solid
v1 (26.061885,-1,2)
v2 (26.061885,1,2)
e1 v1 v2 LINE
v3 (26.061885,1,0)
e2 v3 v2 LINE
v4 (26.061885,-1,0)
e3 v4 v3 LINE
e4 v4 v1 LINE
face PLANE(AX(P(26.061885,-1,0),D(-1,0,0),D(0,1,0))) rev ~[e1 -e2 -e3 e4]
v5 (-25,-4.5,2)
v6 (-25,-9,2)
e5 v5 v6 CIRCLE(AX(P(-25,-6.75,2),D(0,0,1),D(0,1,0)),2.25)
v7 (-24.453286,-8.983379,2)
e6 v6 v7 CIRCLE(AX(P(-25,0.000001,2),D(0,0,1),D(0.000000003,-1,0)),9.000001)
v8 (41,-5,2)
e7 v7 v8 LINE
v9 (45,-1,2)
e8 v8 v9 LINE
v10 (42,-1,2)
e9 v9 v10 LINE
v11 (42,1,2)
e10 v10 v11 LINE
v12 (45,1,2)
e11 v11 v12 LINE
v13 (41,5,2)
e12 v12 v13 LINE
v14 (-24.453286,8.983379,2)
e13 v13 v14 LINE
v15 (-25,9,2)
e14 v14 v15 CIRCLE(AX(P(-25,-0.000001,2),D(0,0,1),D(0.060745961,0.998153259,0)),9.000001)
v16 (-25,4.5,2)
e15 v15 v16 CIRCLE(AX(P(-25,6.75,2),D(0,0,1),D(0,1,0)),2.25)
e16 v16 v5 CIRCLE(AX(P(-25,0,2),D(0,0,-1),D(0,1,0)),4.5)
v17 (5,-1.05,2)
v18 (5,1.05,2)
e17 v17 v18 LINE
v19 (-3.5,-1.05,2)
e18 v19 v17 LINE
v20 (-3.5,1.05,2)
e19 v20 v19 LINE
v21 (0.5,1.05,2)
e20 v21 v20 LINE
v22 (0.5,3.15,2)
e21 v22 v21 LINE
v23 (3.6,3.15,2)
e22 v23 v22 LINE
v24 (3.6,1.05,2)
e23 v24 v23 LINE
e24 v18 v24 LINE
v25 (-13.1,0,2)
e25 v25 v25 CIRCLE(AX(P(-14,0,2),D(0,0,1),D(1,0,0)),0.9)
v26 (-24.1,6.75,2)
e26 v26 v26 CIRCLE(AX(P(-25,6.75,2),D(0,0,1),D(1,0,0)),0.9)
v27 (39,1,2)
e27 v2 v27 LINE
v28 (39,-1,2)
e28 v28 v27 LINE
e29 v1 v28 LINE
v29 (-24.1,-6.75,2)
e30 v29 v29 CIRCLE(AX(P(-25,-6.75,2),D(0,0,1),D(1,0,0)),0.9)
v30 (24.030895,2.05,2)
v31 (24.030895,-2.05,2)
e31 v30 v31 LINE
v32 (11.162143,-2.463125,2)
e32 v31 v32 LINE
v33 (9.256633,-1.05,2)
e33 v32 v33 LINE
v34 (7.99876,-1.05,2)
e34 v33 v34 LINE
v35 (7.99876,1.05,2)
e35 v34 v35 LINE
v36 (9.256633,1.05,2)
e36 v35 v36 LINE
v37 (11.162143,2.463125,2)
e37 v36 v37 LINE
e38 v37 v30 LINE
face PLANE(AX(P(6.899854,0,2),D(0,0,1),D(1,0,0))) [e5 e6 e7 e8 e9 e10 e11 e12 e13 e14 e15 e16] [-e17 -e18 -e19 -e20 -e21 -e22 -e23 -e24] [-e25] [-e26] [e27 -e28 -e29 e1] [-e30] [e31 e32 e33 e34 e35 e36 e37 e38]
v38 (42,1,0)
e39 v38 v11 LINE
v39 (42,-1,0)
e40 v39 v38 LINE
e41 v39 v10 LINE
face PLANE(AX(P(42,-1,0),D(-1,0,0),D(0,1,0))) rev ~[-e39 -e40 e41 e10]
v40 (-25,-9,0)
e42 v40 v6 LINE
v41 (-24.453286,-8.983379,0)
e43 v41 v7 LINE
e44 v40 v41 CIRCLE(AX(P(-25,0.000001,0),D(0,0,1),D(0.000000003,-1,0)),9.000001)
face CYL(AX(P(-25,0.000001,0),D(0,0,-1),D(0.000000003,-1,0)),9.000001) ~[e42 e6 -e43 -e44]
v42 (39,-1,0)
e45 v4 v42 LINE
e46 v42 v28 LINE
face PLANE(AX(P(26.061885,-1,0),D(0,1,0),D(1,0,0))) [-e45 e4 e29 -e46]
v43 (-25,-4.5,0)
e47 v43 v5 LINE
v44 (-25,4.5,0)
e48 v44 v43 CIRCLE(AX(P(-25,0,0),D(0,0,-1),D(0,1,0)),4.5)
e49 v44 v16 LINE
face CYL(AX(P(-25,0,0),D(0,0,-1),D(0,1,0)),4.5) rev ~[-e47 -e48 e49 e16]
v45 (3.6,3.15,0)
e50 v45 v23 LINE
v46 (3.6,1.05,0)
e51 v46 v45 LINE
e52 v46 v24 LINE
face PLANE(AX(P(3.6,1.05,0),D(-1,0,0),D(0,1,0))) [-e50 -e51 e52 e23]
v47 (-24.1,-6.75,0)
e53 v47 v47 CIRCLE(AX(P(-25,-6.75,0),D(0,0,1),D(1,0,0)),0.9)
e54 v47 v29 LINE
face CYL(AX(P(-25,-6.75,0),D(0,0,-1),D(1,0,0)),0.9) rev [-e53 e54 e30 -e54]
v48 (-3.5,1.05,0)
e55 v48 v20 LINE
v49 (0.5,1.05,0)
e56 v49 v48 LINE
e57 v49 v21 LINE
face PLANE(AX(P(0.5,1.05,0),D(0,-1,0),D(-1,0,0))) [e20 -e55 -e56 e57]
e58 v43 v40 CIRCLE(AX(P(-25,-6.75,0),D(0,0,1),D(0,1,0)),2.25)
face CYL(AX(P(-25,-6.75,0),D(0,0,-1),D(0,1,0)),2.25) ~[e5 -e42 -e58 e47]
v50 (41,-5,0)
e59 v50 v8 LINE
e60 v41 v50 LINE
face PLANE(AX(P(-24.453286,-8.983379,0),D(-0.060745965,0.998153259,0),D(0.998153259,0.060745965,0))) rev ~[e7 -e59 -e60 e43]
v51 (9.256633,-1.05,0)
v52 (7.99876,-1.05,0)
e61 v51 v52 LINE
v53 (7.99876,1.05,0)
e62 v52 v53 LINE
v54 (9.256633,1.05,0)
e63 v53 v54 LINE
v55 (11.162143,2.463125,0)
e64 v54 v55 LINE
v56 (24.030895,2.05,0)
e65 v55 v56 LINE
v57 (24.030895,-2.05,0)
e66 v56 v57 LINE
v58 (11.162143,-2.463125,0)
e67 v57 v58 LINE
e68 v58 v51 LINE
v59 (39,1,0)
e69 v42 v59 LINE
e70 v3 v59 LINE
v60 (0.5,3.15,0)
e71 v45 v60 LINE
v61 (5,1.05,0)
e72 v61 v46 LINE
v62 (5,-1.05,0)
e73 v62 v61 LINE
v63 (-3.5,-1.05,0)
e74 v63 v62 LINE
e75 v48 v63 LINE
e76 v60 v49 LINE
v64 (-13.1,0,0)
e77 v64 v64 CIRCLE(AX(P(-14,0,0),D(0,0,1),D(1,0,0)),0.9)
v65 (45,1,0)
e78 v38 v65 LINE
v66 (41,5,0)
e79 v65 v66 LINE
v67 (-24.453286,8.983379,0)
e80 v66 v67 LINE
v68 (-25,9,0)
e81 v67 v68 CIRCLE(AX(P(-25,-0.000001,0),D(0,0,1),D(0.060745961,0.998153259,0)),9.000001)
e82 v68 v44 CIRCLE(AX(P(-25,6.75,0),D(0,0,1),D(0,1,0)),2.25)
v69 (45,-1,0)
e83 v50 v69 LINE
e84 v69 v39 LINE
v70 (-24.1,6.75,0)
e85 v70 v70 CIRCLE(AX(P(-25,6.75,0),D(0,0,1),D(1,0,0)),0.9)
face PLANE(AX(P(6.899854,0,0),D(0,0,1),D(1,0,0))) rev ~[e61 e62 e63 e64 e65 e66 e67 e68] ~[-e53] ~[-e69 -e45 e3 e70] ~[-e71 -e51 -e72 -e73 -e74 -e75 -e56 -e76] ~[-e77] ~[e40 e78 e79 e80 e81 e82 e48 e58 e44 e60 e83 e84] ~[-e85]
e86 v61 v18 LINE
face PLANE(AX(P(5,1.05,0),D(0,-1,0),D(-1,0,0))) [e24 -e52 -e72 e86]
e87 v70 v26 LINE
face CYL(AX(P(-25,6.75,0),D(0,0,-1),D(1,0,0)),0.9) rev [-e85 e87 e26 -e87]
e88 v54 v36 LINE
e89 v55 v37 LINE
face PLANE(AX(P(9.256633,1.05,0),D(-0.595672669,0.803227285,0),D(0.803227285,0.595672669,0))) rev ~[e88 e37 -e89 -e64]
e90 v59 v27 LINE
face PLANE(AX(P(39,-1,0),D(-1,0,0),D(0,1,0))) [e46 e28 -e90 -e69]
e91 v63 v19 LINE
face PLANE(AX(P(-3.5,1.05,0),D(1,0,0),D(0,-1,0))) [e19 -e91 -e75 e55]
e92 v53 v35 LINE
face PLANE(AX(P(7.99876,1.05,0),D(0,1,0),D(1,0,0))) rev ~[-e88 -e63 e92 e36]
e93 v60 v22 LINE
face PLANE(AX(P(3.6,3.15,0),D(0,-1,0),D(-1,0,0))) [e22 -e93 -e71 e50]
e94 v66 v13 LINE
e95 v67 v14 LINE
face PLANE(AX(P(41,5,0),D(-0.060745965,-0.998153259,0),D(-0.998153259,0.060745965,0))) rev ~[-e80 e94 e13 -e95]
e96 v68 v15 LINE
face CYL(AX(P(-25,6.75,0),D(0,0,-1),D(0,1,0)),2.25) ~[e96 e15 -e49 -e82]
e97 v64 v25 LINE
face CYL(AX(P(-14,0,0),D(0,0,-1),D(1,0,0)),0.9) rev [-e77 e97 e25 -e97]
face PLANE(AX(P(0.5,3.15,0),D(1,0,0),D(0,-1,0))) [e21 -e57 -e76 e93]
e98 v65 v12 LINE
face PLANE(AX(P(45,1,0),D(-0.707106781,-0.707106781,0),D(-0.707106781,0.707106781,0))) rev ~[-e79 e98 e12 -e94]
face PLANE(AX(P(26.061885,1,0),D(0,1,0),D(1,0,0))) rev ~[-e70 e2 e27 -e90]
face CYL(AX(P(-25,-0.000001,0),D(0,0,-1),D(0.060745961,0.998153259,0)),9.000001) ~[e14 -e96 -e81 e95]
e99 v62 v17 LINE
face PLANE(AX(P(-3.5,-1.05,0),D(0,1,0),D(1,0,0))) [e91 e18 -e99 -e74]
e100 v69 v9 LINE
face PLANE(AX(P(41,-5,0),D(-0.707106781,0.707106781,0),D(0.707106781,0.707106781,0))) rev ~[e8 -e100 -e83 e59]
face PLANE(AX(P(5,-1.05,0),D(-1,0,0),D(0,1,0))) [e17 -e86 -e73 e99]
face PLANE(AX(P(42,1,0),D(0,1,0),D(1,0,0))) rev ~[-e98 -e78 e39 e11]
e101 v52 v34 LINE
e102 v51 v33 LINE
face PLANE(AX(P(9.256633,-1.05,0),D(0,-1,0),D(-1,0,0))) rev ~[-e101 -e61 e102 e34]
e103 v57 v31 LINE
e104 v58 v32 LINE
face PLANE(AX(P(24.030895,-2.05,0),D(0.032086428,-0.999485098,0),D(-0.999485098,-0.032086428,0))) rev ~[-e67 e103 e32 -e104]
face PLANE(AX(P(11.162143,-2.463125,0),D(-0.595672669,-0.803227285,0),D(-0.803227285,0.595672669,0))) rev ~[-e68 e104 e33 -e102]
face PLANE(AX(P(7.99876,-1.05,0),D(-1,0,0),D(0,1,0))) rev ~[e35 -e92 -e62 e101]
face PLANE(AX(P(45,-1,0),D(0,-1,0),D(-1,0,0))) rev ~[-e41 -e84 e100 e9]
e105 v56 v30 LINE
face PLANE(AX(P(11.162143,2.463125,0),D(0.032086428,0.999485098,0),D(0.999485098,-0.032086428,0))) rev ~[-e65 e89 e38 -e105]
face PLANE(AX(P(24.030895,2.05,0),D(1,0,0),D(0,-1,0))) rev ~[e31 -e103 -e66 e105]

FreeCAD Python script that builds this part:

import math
import FreeCAD as App
import Part
import Sketcher
Q = App.Units.Quantity

doc = App.newDocument("Part")
body = doc.addObject("PartDesign::Body", "Body")

sketch1 = doc.addObject("Sketcher::SketchObject", "Sketch")
body.addObject(sketch1)
sketch1.AttachmentSupport = (doc.XY_Plane, [""])
sketch1.MapMode = "FlatFace"
sketch1.addGeometry(Part.LineSegment(App.Vector(42, 1, 0), App.Vector(45, 1, 0)), False)
sketch1.addGeometry(Part.LineSegment(App.Vector(45, 1, 0), App.Vector(41, 5, 0)), False)
sketch1.addGeometry(Part.LineSegment(App.Vector(41, 5, 0), App.Vector(-24.453286, 8.983379, 0)), False)
sketch1.addGeometry(Part.ArcOfCircle(Part.Circle(App.Vector(-25, -0.000001, 0), App.Vector(0, 0, 1), 9.000001), math.radians(86.517369), math.radians(90)), False)
sketch1.addGeometry(Part.ArcOfCircle(Part.Circle(App.Vector(-25, 6.75, 0), App.Vector(0, 0, 1), 2.25), math.radians(90), math.radians(270)), False)
sketch1.addGeometry(Part.ArcOfCircle(Part.Circle(App.Vector(-25, 0, 0), App.Vector(0, 0, 1), 4.5), math.radians(-90), math.radians(90)), False)
sketch1.addGeometry(Part.ArcOfCircle(Part.Circle(App.Vector(-25, -6.75, 0), App.Vector(0, 0, 1), 2.25), math.radians(90), math.radians(270)), False)
sketch1.addGeometry(Part.ArcOfCircle(Part.Circle(App.Vector(-25, 0.000001, 0), App.Vector(0, 0, 1), 9.000001), math.radians(-90), math.radians(-86.517369)), False)
sketch1.addGeometry(Part.LineSegment(App.Vector(-24.453286, -8.983379, 0), App.Vector(41, -5, 0)), False)
sketch1.addGeometry(Part.LineSegment(App.Vector(41, -5, 0), App.Vector(45, -1, 0)), False)
sketch1.addGeometry(Part.LineSegment(App.Vector(45, -1, 0), App.Vector(42, -1, 0)), False)
sketch1.addGeometry(Part.LineSegment(App.Vector(42, -1, 0), App.Vector(42, 1, 0)), False)
sketch1.addGeometry(Part.Circle(App.Vector(-25, -6.75, 0), App.Vector(0, 0, 1), 0.9), False)
sketch1.addGeometry(Part.Circle(App.Vector(-14, 0, 0), App.Vector(0, 0, 1), 0.9), False)
sketch1.addGeometry(Part.LineSegment(App.Vector(3.6, 1.05, 0), App.Vector(5, 1.05, 0)), False)
sketch1.addGeometry(Part.LineSegment(App.Vector(5, 1.05, 0), App.Vector(5, -1.05, 0)), False)
sketch1.addGeometry(Part.LineSegment(App.Vector(5, -1.05, 0), App.Vector(-3.5, -1.05, 0)), False)
sketch1.addGeometry(Part.LineSegment(App.Vector(-3.5, -1.05, 0), App.Vector(-3.5, 1.05, 0)), False)
sketch1.addGeometry(Part.LineSegment(App.Vector(-3.5, 1.05, 0), App.Vector(0.5, 1.05, 0)), False)
sketch1.addGeometry(Part.LineSegment(App.Vector(0.5, 1.05, 0), App.Vector(0.5, 3.15, 0)), False)
sketch1.addGeometry(Part.LineSegment(App.Vector(0.5, 3.15, 0), App.Vector(3.6, 3.15, 0)), False)
sketch1.addGeometry(Part.LineSegment(App.Vector(3.6, 3.15, 0), App.Vector(3.6, 1.05, 0)), False)
sketch1.addGeometry(Part.Circle(App.Vector(-25, 6.75, 0), App.Vector(0, 0, 1), 0.9), False)
sketch1.addGeometry(Part.LineSegment(App.Vector(24.030895, 2.05, 0), App.Vector(24.030895, -2.05, 0)), False)
sketch1.addGeometry(Part.LineSegment(App.Vector(24.030895, -2.05, 0), App.Vector(11.162143, -2.463125, 0)), False)
sketch1.addGeometry(Part.LineSegment(App.Vector(11.162143, -2.463125, 0), App.Vector(9.256633, -1.05, 0)), False)
sketch1.addGeometry(Part.LineSegment(App.Vector(9.256633, -1.05, 0), App.Vector(7.99876, -1.05, 0)), False)
sketch1.addGeometry(Part.LineSegment(App.Vector(7.99876, -1.05, 0), App.Vector(7.99876, 1.05, 0)), False)
sketch1.addGeometry(Part.LineSegment(App.Vector(7.99876, 1.05, 0), App.Vector(9.256633, 1.05, 0)), False)
sketch1.addGeometry(Part.LineSegment(App.Vector(9.256633, 1.05, 0), App.Vector(11.162143, 2.463125, 0)), False)
sketch1.addGeometry(Part.LineSegment(App.Vector(11.162143, 2.463125, 0), App.Vector(24.030895, 2.05, 0)), False)
sketch1.addGeometry(Part.LineSegment(App.Vector(39, -1, 0), App.Vector(26.061885, -1, 0)), False)
sketch1.addGeometry(Part.LineSegment(App.Vector(26.061885, -1, 0), App.Vector(26.061885, 1, 0)), False)
sketch1.addGeometry(Part.LineSegment(App.Vector(26.061885, 1, 0), App.Vector(39, 1, 0)), False)
sketch1.addGeometry(Part.LineSegment(App.Vector(39, 1, 0), App.Vector(39, -1, 0)), False)
sketch1.addConstraint(Sketcher.Constraint("Coincident", 0, 2, 1, 1))
sketch1.addConstraint(Sketcher.Constraint("Coincident", 1, 2, 2, 1))
sketch1.addConstraint(Sketcher.Constraint("Tangent", 2, 2, 3, 1))
sketch1.addConstraint(Sketcher.Constraint("Tangent", 3, 2, 4, 1))
sketch1.addConstraint(Sketcher.Constraint("Tangent", 4, 2, 5, 2))
sketch1.addConstraint(Sketcher.Constraint("Tangent", 5, 1, 6, 1))
sketch1.addConstraint(Sketcher.Constraint("Tangent", 6, 2, 7, 1))
sketch1.addConstraint(Sketcher.Constraint("Tangent", 7, 2, 8, 1))
sketch1.addConstraint(Sketcher.Constraint("Coincident", 8, 2, 9, 1))
sketch1.addConstraint(Sketcher.Constraint("Coincident", 9, 2, 10, 1))
sketch1.addConstraint(Sketcher.Constraint("Coincident", 10, 2, 11, 1))
sketch1.addConstraint(Sketcher.Constraint("Coincident", 11, 2, 0, 1))
sketch1.addConstraint(Sketcher.Constraint("Coincident", 14, 2, 15, 1))
sketch1.addConstraint(Sketcher.Constraint("Coincident", 15, 2, 16, 1))
sketch1.addConstraint(Sketcher.Constraint("Coincident", 16, 2, 17, 1))
sketch1.addConstraint(Sketcher.Constraint("Coincident", 17, 2, 18, 1))
sketch1.addConstraint(Sketcher.Constraint("Coincident", 18, 2, 19, 1))
sketch1.addConstraint(Sketcher.Constraint("Coincident", 19, 2, 20, 1))
sketch1.addConstraint(Sketcher.Constraint("Coincident", 20, 2, 21, 1))
sketch1.addConstraint(Sketcher.Constraint("Coincident", 21, 2, 14, 1))
sketch1.addConstraint(Sketcher.Constraint("Coincident", 23, 2, 24, 1))
sketch1.addConstraint(Sketcher.Constraint("Coincident", 24, 2, 25, 1))
sketch1.addConstraint(Sketcher.Constraint("Coincident", 25, 2, 26, 1))
sketch1.addConstraint(Sketcher.Constraint("Coincident", 26, 2, 27, 1))
sketch1.addConstraint(Sketcher.Constraint("Coincident", 27, 2, 28, 1))
sketch1.addConstraint(Sketcher.Constraint("Coincident", 28, 2, 29, 1))
sketch1.addConstraint(Sketcher.Constraint("Coincident", 29, 2, 30, 1))
sketch1.addConstraint(Sketcher.Constraint("Coincident", 30, 2, 23, 1))
sketch1.addConstraint(Sketcher.Constraint("Coincident", 31, 2, 32, 1))
sketch1.addConstraint(Sketcher.Constraint("Coincident", 32, 2, 33, 1))
sketch1.addConstraint(Sketcher.Constraint("Coincident", 33, 2, 34, 1))
sketch1.addConstraint(Sketcher.Constraint("Coincident", 34, 2, 31, 1))
sketch1.addConstraint(Sketcher.Constraint("Horizontal", 0))
sketch1.addConstraint(Sketcher.Constraint("Horizontal", 10))
sketch1.addConstraint(Sketcher.Constraint("Vertical", 11))
sketch1.addConstraint(Sketcher.Constraint("Horizontal", 14))
sketch1.addConstraint(Sketcher.Constraint("Vertical", 15))
sketch1.addConstraint(Sketcher.Constraint("Horizontal", 16))
sketch1.addConstraint(Sketcher.Constraint("Vertical", 17))
sketch1.addConstraint(Sketcher.Constraint("Horizontal", 18))
sketch1.addConstraint(Sketcher.Constraint("Vertical", 19))
sketch1.addConstraint(Sketcher.Constraint("Horizontal", 20))
sketch1.addConstraint(Sketcher.Constraint("Vertical", 21))
sketch1.addConstraint(Sketcher.Constraint("Vertical", 23))
sketch1.addConstraint(Sketcher.Constraint("Horizontal", 26))
sketch1.addConstraint(Sketcher.Constraint("Vertical", 27))
sketch1.addConstraint(Sketcher.Constraint("Horizontal", 28))
sketch1.addConstraint(Sketcher.Constraint("Horizontal", 31))
sketch1.addConstraint(Sketcher.Constraint("Vertical", 32))
sketch1.addConstraint(Sketcher.Constraint("Horizontal", 33))
sketch1.addConstraint(Sketcher.Constraint("Vertical", 34))
sketch1.addConstraint(Sketcher.Constraint("Coincident", 5, 3, 3, 3))
sketch1.addConstraint(Sketcher.Constraint("Coincident", 7, 3, 3, 3))
sketch1.addConstraint(Sketcher.Constraint("Coincident", 12, 3, 6, 3))
sketch1.addConstraint(Sketcher.Constraint("Coincident", 22, 3, 4, 3))
sketch1.addConstraint(Sketcher.Constraint("Equal", 4, 6))
sketch1.addConstraint(Sketcher.Constraint("Equal", 12, 13))
sketch1.addConstraint(Sketcher.Constraint("Equal", 13, 22))
sketch1.addConstraint(Sketcher.Constraint("Symmetric", 4, 3, 6, 3, -1))
sketch1.addConstraint(Sketcher.Constraint("Symmetric", 1, 2, 8, 2, -1))
sketch1.addConstraint(Sketcher.Constraint("Symmetric", 0, 2, 9, 2, -1))
sketch1.addConstraint(Sketcher.Constraint("Symmetric", 25, 2, 28, 2, -1))
sketch1.addConstraint(Sketcher.Constraint("Symmetric", 24, 2, 29, 2, -1))
sketch1.addConstraint(Sketcher.Constraint("PointOnObject", 13, 3, -1))
sketch1.addConstraint(Sketcher.Constraint("Perpendicular", 1, 9))
sketch1.addConstraint(Sketcher.Constraint("Horizontal", 14, 2, 17, 2))
sketch1.addConstraint(Sketcher.Constraint("Horizontal", 16, 2, 25, 2))
sketch1.addConstraint(Sketcher.Constraint("Horizontal", 21, 2, 27, 2))
sketch1.addConstraint(Sketcher.Constraint("Horizontal", 10, 2, 31, 2))
sketch1.addConstraint(Sketcher.Constraint("Horizontal", 11, 2, 32, 2))
sketch1.addConstraint(Sketcher.Constraint("Vertical", 3, 3, 4, 3))
sketch1.addConstraint(Sketcher.Constraint("Equal", 17, 19))
sketch1.addConstraint(Sketcher.Constraint("Equal", 24, 30))
sketch1.addConstraint(Sketcher.Constraint("Radius", 3, Q("9.000001 mm")))
sketch1.addConstraint(Sketcher.Constraint("Diameter", 12, Q("1.8 mm")))
sketch1.addConstraint(Sketcher.Constraint("Radius", 5, Q("4.5 mm")))
sketch1.addConstraint(Sketcher.Constraint("DistanceX", 0, 1, 0, 2, Q("3 mm")))
sketch1.addConstraint(Sketcher.Constraint("DistanceX", 18, 1, 18, 2, Q("4 mm")))
sketch1.addConstraint(Sketcher.Constraint("DistanceY", 11, 1, 11, 2, Q("2 mm")))
sketch1.addConstraint(Sketcher.Constraint("DistanceX", 14, 1, 14, 2, Q("1.4 mm")))
sketch1.addConstraint(Sketcher.Constraint("DistanceX", 16, 2, 16, 1, Q("8.5 mm")))
sketch1.addConstraint(Sketcher.Constraint("DistanceY", 15, 2, 15, 1, Q("2.1 mm")))
sketch1.addConstraint(Sketcher.Constraint("DistanceY", 23, 2, 23, 1, Q("4.1 mm")))
sketch1.addConstraint(Sketcher.Constraint("DistanceX", 3, 3, -1, 1, Q("25 mm")))
sketch1.addConstraint(Sketcher.Constraint("DistanceX", 13, 3, -1, 1, Q("14 mm")))
sketch1.addConstraint(Sketcher.Constraint("DistanceX", -1, 1, 0, 2, Q("45 mm")))
sketch1.addConstraint(Sketcher.Constraint("DistanceX", -1, 1, 1, 2, Q("41 mm")))
sketch1.addConstraint(Sketcher.Constraint("DistanceX", -1, 1, 14, 2, Q("5 mm")))
sketch1.addConstraint(Sketcher.Constraint("DistanceX", -1, 1, 33, 2, Q("39 mm")))
sketch1.addConstraint(Sketcher.Constraint("Distance", 24, Q("12.875381 mm")))
sketch1.addConstraint(Sketcher.Constraint("Distance", 25, Q("2.372318 mm")))
sketch1.addConstraint(Sketcher.Constraint("DistanceX", 26, 2, 26, 1, Q("1.257873 mm")))
sketch1.addConstraint(Sketcher.Constraint("DistanceX", 31, 2, 31, 1, Q("12.938115 mm")))
sketch1.addConstraint(Sketcher.Constraint("DistanceX", -1, 1, 26, 2, Q("7.99876 mm")))
sketch1.addConstraint(Sketcher.Constraint("DistanceX", 25, 2, 24, 2, Q("1.905511 mm")))
pad1 = doc.addObject("PartDesign::Pad", "Pad")
body.addObject(pad1)
pad1.Profile = sketch1
pad1.Length = 2

doc.recompute()
